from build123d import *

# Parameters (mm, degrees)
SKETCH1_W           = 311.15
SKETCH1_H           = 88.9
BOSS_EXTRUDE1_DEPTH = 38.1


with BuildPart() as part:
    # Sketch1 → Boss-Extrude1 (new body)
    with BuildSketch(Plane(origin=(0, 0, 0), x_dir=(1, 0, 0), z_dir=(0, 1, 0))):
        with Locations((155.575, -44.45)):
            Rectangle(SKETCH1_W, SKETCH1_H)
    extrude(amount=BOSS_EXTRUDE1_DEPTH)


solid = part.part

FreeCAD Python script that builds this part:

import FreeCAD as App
import Part
import Sketcher
from FreeCAD import Vector
Q = App.Units.Quantity

doc = App.newDocument("Part")
body = doc.addObject("PartDesign::Body", "Body")

# Sketch on XZ plane
sketch1 = body.newObject("Sketcher::SketchObject", "Sketch")
sketch1.AttachmentSupport = (doc.getObject("XZ_Plane"), [""])
sketch1.MapMode = "FlatFace"
sketch1.addGeometry(Part.LineSegment(Vector(0, 0, 0), Vector(0, 89, 0)), False)
sketch1.addGeometry(Part.LineSegment(Vector(0, 89, 0), Vector(311, 89, 0)), False)
sketch1.addGeometry(Part.LineSegment(Vector(311, 89, 0), Vector(311, 0, 0)), False)
sketch1.addGeometry(Part.LineSegment(Vector(311, 0, 0), Vector(0, 0, 0)), False)
sketch1.addConstraint(Sketcher.Constraint("Coincident", 0, 2, 1, 1))
sketch1.addConstraint(Sketcher.Constraint("Coincident", 1, 2, 2, 1))
sketch1.addConstraint(Sketcher.Constraint("Coincident", 2, 2, 3, 1))
sketch1.addConstraint(Sketcher.Constraint("Coincident", 3, 2, 0, 1))
sketch1.addConstraint(Sketcher.Constraint("Vertical", 0))
sketch1.addConstraint(Sketcher.Constraint("Horizontal", 1))
sketch1.addConstraint(Sketcher.Constraint("Vertical", 2))
sketch1.addConstraint(Sketcher.Constraint("Horizontal", 3))
sketch1.addConstraint(Sketcher.Constraint("Coincident", 3, 2, -1, 1))
sketch1.addConstraint(Sketcher.Constraint("DistanceY", 0, 1, 0, 2, Q("3.5 in")))
sketch1.addConstraint(Sketcher.Constraint("DistanceX", 1, 1, 1, 2, Q("12.25 in")))
pad1 = body.newObject("PartDesign::Pad", "Pad")
pad1.Profile = sketch1
pad1.Length = Q("1.5 in")
pad1.Reversed = True

doc.recompute()
